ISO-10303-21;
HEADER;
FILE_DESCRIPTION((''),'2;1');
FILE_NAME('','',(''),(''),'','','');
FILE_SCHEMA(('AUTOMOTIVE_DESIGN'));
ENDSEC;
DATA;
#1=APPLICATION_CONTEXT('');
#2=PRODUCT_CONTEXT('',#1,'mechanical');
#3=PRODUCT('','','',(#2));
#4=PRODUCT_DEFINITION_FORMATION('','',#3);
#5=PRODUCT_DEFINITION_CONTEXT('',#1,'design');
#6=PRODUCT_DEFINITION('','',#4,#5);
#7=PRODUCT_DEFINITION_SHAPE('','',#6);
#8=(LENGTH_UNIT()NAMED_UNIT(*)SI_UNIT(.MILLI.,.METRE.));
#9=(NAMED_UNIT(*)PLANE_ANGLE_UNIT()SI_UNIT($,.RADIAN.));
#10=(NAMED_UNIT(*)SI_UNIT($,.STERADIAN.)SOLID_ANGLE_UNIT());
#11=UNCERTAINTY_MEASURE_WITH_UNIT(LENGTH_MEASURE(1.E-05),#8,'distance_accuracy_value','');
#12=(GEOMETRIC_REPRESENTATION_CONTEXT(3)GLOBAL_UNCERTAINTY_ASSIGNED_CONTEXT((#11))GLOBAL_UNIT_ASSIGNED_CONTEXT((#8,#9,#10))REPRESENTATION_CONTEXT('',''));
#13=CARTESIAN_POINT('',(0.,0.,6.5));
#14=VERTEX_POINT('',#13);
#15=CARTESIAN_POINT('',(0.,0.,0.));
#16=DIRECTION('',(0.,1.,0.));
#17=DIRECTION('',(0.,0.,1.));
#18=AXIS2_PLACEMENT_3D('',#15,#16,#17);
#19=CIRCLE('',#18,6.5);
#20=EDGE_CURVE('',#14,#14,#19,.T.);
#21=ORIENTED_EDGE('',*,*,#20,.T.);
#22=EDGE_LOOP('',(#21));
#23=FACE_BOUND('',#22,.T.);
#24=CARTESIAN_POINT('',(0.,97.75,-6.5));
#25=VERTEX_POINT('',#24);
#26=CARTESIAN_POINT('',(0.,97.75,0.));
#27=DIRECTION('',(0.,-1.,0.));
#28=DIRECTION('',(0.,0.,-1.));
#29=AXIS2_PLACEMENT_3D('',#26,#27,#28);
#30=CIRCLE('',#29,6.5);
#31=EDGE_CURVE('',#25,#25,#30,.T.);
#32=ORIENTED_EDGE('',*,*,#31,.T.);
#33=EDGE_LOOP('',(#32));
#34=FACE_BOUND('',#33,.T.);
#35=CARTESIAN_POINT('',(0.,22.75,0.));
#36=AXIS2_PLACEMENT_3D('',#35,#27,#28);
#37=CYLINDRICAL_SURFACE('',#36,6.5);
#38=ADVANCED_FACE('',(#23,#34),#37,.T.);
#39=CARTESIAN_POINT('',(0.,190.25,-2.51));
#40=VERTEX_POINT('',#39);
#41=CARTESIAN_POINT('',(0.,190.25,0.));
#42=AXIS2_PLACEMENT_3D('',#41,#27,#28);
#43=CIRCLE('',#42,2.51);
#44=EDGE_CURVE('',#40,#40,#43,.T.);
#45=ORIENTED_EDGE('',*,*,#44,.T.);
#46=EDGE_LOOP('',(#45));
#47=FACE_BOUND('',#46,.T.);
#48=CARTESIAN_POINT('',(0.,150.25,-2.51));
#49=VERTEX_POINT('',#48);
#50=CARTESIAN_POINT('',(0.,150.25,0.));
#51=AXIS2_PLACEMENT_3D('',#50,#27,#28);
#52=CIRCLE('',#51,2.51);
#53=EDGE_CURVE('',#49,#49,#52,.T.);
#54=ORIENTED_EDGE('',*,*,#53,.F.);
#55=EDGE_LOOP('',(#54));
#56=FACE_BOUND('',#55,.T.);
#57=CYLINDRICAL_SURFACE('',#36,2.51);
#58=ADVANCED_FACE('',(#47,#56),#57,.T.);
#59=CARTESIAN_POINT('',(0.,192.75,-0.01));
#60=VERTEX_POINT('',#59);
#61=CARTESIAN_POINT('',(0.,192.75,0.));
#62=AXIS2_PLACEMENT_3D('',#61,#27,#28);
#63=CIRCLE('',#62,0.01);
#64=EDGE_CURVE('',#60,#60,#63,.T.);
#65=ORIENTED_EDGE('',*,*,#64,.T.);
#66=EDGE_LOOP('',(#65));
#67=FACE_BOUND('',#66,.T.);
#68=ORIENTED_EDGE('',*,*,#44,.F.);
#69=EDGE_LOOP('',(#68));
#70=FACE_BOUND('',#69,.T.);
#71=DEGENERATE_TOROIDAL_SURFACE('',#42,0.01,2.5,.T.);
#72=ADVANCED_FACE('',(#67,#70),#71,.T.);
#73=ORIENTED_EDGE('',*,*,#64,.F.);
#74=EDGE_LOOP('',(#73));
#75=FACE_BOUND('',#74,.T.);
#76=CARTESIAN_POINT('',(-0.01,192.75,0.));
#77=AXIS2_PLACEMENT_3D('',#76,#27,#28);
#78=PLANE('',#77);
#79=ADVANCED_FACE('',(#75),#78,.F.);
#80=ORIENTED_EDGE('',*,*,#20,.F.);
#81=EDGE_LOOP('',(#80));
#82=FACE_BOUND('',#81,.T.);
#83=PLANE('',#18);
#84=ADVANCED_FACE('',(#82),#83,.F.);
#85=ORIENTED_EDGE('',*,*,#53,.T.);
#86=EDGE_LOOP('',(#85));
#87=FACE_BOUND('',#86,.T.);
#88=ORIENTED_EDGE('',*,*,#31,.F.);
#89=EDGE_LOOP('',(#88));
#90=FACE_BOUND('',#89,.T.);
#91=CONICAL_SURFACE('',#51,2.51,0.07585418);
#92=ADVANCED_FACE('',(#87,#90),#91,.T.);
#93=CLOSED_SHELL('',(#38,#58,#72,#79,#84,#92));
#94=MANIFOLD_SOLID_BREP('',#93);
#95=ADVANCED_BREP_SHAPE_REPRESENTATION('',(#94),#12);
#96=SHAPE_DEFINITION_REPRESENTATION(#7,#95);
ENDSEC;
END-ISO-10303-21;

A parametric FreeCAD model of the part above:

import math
import FreeCAD as App
import Part
import Sketcher
from FreeCAD import Vector
Q = App.Units.Quantity

doc = App.newDocument("Part")
body = doc.addObject("PartDesign::Body", "Body")

# Sketch on XZ plane
sketch1 = body.newObject("Sketcher::SketchObject", "Sketch")
sketch1.AttachmentSupport = (doc.getObject("XZ_Plane"), [""])
sketch1.MapMode = "FlatFace"
sketch1.addGeometry(Part.Circle(Vector(0, 0, 0), Vector(0, 0, 1), 6), False)
sketch1.addConstraint([
    Sketcher.Constraint("Coincident", 0, 3, -1, 1),
    Sketcher.Constraint("Diameter", 0, Q("13 mm")),
])
pad1 = body.newObject("PartDesign::Pad", "Pad")
pad1.Profile = sketch1
pad1.Length = 22.75
pad1.Reversed = True

# Sketch on XY plane
sketch2 = body.newObject("Sketcher::SketchObject", "Sketch001")
sketch2.AttachmentSupport = (doc.getObject("XY_Plane"), [""])
sketch2.MapMode = "FlatFace"
sketch2.addGeometry([
    Part.LineSegment(Vector(-6.5, 22.75, 0), Vector(0, 22.75, 0)),  # 0
    Part.LineSegment(Vector(0, 22.75, 0), Vector(0, 192.75, 0)),  # 1
    Part.LineSegment(Vector(0, 192.75, 0), Vector(-0.01, 192.75, 0)),  # 2
    Part.ArcOfCircle(Part.Circle(Vector(-0.01, 190.25, 0), Vector(0, 0, 1), 2.5), math.radians(90), math.radians(180)),  # 3
    Part.LineSegment(Vector(-2.51, 190.25, 0), Vector(-2.51, 150.25, 0)),  # 4
    Part.LineSegment(Vector(-2.51, 150.25, 0), Vector(-6.5, 97.75, 0)),  # 5
    Part.LineSegment(Vector(-6.5, 97.75, 0), Vector(-6.5, 22.75, 0)),  # 6
], False)
sketch2.addConstraint([
    Sketcher.Constraint("Coincident", 0, 2, 1, 1),
    Sketcher.Constraint("Coincident", 1, 2, 2, 1),
    Sketcher.Constraint("Tangent", 2, 2, 3, 1),
    Sketcher.Constraint("Tangent", 3, 2, 4, 1),
    Sketcher.Constraint("Coincident", 4, 2, 5, 1),
    Sketcher.Constraint("Coincident", 5, 2, 6, 1),
    Sketcher.Constraint("Coincident", 6, 2, 0, 1),
    Sketcher.Constraint("Horizontal", 0),
    Sketcher.Constraint("Vertical", 1),
    Sketcher.Constraint("Horizontal", 2),
    Sketcher.Constraint("Vertical", 4),
    Sketcher.Constraint("Vertical", 6),
    Sketcher.Constraint("PointOnObject", 0, 2, -2),
    Sketcher.Constraint("Radius", 3, Q("2.5 mm")),
    Sketcher.Constraint("DistanceY", 1, 1, 1, 2, Q("170 mm")),
    Sketcher.Constraint("DistanceY", 4, 2, 4, 1, Q("40 mm")),
    Sketcher.Constraint("DistanceY", 6, 2, 6, 1, Q("75 mm")),
    Sketcher.Constraint("DistanceX", 0, 1, 0, 2, Q("6.5 mm")),
    Sketcher.Constraint("DistanceX", 2, 2, 2, 1, Q("0.01 mm")),
    Sketcher.Constraint("DistanceY", -1, 1, 3, 3, Q("190.25 mm")),
])
revolution = body.newObject("PartDesign::Revolution", "Revolution")
revolution.Profile = sketch2
revolution.ReferenceAxis = (sketch2, ["V_Axis"])
revolution.Angle = 360

doc.recompute()
